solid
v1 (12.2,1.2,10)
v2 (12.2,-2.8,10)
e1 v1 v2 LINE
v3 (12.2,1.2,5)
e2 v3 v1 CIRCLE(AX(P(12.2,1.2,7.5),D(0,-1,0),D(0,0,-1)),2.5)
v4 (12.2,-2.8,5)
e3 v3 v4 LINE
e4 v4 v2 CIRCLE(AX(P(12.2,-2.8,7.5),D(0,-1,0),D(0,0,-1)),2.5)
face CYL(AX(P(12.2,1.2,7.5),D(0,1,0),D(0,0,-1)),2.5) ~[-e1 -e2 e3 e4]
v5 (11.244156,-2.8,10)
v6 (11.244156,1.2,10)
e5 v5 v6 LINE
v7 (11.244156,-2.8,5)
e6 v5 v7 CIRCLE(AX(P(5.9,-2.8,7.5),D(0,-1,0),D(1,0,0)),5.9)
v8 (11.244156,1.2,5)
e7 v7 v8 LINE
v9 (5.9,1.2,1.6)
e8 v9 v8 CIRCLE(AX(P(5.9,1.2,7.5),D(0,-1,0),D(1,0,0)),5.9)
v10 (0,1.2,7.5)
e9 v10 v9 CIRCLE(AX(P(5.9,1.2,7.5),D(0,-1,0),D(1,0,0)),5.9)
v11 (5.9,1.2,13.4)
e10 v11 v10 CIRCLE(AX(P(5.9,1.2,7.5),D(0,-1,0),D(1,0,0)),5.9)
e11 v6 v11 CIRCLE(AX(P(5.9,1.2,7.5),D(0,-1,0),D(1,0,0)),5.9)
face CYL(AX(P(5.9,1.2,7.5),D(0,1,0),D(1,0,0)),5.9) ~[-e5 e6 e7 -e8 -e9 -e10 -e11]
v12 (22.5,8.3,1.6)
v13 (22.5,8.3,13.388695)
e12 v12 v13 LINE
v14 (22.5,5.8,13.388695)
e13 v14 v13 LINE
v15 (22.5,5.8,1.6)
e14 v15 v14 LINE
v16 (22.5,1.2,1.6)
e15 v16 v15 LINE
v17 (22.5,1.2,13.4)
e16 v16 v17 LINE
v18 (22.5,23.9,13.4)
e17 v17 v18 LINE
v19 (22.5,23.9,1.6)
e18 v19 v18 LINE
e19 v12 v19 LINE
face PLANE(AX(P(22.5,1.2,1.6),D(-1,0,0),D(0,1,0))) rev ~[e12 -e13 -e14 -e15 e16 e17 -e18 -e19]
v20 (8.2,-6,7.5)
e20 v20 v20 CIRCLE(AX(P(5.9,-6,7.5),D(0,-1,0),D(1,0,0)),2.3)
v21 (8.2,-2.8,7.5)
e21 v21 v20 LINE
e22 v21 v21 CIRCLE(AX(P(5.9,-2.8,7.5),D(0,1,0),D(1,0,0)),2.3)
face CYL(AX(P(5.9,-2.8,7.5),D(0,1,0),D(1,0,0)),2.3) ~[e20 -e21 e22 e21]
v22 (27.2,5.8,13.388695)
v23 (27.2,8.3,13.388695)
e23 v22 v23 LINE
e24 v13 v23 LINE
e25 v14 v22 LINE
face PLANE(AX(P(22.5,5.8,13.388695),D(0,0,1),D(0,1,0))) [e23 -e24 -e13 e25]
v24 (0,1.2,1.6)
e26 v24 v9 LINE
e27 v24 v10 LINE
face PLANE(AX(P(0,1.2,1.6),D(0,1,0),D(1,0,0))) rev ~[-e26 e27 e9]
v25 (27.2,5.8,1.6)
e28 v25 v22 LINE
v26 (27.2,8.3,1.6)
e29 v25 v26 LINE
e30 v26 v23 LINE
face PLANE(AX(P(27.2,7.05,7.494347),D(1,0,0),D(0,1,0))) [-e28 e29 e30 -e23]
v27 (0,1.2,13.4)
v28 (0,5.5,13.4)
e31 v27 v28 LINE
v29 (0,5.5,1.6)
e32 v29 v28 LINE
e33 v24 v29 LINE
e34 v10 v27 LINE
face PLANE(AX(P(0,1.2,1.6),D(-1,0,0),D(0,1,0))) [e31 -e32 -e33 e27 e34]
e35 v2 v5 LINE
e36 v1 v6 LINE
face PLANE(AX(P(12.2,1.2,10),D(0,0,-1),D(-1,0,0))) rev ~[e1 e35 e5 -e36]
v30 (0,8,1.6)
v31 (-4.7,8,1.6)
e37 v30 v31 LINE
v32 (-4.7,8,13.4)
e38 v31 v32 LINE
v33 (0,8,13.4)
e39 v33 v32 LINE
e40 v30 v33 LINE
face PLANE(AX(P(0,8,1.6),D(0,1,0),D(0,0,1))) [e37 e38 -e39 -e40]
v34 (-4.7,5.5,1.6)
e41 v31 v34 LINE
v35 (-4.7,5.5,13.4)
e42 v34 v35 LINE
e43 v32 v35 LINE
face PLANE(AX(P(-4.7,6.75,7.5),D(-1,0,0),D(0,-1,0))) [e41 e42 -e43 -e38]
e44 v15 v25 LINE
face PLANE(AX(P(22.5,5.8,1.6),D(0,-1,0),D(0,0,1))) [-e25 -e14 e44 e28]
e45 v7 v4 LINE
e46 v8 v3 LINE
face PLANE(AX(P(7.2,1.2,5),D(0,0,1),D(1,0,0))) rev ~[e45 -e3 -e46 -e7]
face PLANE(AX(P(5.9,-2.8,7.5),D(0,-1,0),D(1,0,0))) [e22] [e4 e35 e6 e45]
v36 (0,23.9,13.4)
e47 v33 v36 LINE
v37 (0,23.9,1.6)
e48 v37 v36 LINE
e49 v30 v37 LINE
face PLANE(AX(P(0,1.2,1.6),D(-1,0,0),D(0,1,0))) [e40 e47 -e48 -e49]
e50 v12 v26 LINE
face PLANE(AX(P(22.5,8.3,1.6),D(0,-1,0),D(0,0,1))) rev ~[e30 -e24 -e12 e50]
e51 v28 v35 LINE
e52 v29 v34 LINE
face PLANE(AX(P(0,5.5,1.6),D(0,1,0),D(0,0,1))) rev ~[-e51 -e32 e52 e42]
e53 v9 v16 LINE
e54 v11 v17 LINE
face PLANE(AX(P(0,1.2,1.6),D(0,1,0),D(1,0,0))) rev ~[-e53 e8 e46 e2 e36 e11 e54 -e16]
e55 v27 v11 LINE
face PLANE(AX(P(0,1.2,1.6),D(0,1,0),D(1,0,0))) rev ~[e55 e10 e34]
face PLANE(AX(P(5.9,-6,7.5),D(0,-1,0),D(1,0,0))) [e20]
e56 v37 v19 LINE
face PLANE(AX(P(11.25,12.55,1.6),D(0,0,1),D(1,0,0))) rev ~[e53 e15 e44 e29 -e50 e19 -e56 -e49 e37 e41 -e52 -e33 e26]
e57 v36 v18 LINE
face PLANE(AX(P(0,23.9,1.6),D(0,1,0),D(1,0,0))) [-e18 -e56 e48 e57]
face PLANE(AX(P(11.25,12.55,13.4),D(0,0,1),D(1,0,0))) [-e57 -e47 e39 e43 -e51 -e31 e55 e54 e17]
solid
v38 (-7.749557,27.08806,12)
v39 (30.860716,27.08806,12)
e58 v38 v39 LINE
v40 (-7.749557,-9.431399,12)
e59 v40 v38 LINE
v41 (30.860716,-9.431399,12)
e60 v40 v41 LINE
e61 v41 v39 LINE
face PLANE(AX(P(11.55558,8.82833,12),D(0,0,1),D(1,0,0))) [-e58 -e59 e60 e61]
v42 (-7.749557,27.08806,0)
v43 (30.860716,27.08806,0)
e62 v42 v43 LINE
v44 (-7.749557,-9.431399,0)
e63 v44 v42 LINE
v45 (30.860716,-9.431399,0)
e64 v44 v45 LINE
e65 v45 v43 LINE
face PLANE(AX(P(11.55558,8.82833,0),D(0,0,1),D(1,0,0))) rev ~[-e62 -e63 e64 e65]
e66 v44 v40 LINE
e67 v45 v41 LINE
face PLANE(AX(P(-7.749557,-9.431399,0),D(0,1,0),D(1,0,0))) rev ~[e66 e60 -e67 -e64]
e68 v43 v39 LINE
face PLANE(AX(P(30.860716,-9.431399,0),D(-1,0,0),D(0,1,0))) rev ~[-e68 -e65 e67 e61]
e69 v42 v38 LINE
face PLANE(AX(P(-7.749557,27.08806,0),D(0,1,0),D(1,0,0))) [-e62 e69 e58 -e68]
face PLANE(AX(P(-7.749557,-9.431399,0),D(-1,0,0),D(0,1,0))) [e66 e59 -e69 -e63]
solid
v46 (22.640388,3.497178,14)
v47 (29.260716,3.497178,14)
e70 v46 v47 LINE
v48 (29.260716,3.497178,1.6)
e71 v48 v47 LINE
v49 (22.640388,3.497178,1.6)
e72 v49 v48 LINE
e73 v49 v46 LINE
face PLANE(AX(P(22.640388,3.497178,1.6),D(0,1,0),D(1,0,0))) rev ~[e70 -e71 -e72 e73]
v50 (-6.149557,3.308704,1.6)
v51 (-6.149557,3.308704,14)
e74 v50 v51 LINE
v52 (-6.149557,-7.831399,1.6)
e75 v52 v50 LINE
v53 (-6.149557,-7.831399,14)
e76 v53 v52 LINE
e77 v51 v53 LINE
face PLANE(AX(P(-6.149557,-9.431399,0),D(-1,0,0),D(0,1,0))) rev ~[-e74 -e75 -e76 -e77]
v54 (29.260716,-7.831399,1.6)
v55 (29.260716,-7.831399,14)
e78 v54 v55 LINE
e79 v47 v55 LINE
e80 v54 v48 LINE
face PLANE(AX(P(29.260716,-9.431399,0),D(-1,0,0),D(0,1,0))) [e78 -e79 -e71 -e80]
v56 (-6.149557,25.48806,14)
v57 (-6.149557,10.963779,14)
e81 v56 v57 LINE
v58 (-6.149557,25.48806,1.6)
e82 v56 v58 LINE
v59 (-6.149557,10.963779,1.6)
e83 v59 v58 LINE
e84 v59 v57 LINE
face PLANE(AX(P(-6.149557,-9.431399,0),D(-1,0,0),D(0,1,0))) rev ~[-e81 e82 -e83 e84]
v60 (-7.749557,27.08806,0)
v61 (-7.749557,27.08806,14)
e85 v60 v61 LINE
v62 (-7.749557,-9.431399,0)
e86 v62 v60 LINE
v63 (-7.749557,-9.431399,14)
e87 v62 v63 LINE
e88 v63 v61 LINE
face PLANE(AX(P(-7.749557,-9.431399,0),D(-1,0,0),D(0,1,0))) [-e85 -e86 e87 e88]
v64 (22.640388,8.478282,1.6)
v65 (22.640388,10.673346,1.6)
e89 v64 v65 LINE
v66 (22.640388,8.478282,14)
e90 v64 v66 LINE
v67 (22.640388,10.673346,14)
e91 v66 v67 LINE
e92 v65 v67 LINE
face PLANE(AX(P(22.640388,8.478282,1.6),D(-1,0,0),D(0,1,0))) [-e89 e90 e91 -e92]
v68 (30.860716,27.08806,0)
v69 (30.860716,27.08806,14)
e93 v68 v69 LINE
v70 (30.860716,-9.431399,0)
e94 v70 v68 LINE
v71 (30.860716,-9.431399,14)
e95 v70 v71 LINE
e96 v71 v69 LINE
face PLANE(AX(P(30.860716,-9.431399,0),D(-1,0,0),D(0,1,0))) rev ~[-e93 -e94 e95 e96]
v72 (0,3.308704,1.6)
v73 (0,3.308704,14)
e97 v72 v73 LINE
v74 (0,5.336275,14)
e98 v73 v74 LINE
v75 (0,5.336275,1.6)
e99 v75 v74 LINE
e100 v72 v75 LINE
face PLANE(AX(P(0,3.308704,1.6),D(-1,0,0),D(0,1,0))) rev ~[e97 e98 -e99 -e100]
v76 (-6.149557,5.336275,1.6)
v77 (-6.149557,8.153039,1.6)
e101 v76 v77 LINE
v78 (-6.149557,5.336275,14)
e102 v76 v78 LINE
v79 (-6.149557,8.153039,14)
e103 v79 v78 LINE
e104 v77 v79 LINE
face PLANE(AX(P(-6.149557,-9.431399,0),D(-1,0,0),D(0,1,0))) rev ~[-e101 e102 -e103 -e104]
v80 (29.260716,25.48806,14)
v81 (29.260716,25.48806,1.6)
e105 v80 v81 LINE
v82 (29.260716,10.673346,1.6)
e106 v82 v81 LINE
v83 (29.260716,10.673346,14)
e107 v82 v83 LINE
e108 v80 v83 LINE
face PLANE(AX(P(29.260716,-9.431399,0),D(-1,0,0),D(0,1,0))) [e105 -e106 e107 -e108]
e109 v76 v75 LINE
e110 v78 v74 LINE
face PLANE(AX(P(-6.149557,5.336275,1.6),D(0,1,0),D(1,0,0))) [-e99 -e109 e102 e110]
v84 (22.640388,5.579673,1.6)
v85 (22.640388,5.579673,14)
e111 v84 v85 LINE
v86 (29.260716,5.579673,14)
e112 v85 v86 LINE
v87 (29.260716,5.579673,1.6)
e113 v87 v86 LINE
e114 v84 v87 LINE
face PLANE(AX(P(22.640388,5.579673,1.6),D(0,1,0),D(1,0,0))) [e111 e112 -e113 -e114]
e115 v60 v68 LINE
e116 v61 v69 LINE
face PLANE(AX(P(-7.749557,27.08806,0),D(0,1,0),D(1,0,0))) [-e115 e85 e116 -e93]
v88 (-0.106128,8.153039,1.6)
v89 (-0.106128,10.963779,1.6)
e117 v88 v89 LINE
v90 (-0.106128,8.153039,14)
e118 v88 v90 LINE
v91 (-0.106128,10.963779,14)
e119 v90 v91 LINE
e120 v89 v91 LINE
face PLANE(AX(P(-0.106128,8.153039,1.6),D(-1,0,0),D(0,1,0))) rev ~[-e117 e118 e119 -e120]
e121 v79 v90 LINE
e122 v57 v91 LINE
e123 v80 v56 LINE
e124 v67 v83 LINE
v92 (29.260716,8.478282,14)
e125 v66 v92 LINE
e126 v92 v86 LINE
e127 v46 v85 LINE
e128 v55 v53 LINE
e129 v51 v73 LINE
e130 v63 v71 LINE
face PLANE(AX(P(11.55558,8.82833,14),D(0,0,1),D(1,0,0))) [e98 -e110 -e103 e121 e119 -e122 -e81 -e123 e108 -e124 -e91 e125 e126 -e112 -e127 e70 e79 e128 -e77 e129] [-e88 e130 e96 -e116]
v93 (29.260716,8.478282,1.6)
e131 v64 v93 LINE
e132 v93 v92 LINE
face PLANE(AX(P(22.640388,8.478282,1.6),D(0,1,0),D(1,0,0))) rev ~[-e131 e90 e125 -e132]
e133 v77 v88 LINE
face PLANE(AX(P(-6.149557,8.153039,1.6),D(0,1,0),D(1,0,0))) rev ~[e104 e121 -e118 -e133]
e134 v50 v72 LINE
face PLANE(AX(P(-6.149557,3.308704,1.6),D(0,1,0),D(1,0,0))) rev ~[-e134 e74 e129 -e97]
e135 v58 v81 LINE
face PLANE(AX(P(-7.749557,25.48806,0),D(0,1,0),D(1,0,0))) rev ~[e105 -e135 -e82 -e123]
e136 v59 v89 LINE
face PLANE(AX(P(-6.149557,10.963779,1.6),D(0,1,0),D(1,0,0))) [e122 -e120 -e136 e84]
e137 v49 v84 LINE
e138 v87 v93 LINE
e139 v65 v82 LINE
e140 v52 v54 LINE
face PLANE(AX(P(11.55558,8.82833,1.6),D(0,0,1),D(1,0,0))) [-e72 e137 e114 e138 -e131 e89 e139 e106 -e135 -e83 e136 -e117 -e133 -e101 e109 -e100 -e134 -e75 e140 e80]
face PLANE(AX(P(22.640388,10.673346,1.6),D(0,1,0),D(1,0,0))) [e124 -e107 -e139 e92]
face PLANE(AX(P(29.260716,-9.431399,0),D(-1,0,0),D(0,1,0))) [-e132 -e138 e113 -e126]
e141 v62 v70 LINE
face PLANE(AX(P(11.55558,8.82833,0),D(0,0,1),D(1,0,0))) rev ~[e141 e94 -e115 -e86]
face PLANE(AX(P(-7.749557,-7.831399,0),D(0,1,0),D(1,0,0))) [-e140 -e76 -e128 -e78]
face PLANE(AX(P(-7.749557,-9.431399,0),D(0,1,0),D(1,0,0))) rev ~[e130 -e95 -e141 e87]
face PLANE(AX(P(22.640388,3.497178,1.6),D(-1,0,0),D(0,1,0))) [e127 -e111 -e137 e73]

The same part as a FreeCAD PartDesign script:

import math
import FreeCAD as App
import Part
import Sketcher


def faces_at(feature, points):
    """Names of the faces that lie closest to the given points."""
    faces = feature.Shape.Faces
    near = lambda p: min(range(len(faces)), key=lambda i: faces[i].distToShape(Part.Vertex(*p))[0])
    return sorted({f"Face{near(p) + 1}" for p in points})

doc = App.newDocument("Part")
body = doc.addObject("PartDesign::Body", "Body")

sketch1 = body.newObject("Sketcher::SketchObject", "Sketch")
sketch1.AttachmentSupport = (doc.getObject("XY_Plane"), [""])
sketch1.MapMode = "FlatFace"
sketch1.addGeometry([
    Part.LineSegment(App.Vector(0, 22.7, 0), App.Vector(0, 0, 0)),
    Part.LineSegment(App.Vector(0, 0, 0), App.Vector(22.5, 0, 0)),
    Part.LineSegment(App.Vector(22.5, 0, 0), App.Vector(22.5, 22.7, 0)),
    Part.LineSegment(App.Vector(22.5, 22.7, 0), App.Vector(0, 22.7, 0)),
], False)
sketch1.addConstraint([
    Sketcher.Constraint("Coincident", 0, 2, 1, 1),
    Sketcher.Constraint("Coincident", 1, 2, 2, 1),
    Sketcher.Constraint("Coincident", 2, 2, 3, 1),
    Sketcher.Constraint("Coincident", 3, 2, 0, 1),
    Sketcher.Constraint("Vertical", 0),
    Sketcher.Constraint("Horizontal", 1),
    Sketcher.Constraint("Vertical", 2),
    Sketcher.Constraint("Horizontal", 3),
    Sketcher.Constraint("Coincident", 0, 2, -1, 1),
    Sketcher.Constraint("DistanceX", 1, 1, 1, 2, 22.5),
    Sketcher.Constraint("DistanceY", 0, 2, 0, 1, 22.7),
])
pad1 = body.newObject("PartDesign::Pad", "Pad")
pad1.Profile = sketch1
pad1.Length = 11.8

sketch2 = body.newObject("Sketcher::SketchObject", "Sketch001")
sketch2.AttachmentSupport = (doc.getObject("YZ_Plane"), [""])
sketch2.MapMode = "FlatFace"
sketch2.AttachmentOffset = App.Placement(App.Vector(0, 0, 22.5), App.Rotation())
sketch2.addGeometry([
    Part.LineSegment(App.Vector(4.6, 11.788695, 0), App.Vector(4.6, 0, 0)),
    Part.LineSegment(App.Vector(4.6, 0, 0), App.Vector(7.1, 0, 0)),
    Part.LineSegment(App.Vector(7.1, 0, 0), App.Vector(7.1, 11.788695, 0)),
    Part.LineSegment(App.Vector(7.1, 11.788695, 0), App.Vector(4.6, 11.788695, 0)),
], False)
sketch2.addConstraint([
    Sketcher.Constraint("Coincident", 0, 2, 1, 1),
    Sketcher.Constraint("Coincident", 1, 2, 2, 1),
    Sketcher.Constraint("Coincident", 2, 2, 3, 1),
    Sketcher.Constraint("Coincident", 3, 2, 0, 1),
    Sketcher.Constraint("Vertical", 0),
    Sketcher.Constraint("Horizontal", 1),
    Sketcher.Constraint("Vertical", 2),
    Sketcher.Constraint("Horizontal", 3),
    Sketcher.Constraint("PointOnObject", 0, 2, -1),
    Sketcher.Constraint("DistanceX", 1, 1, 1, 2, 2.5),
    Sketcher.Constraint("DistanceX", -1, 1, 0, 2, 4.6),
    Sketcher.Constraint("DistanceY", 0, 2, 0, 1, 11.788695),
])
pad2 = body.newObject("PartDesign::Pad", "Pad001")
pad2.Profile = sketch2
pad2.Length = 4.7

sketch3 = body.newObject("Sketcher::SketchObject", "Sketch002")
sketch3.AttachmentSupport = (doc.getObject("YZ_Plane"), [""])
sketch3.MapMode = "FlatFace"
sketch3.addGeometry([
    Part.LineSegment(App.Vector(6.8, 11.8, 0), App.Vector(6.8, 0, 0)),
    Part.LineSegment(App.Vector(6.8, 0, 0), App.Vector(4.3, 0, 0)),
    Part.LineSegment(App.Vector(4.3, 0, 0), App.Vector(4.3, 11.8, 0)),
    Part.LineSegment(App.Vector(4.3, 11.8, 0), App.Vector(6.8, 11.8, 0)),
], False)
sketch3.addConstraint([
    Sketcher.Constraint("Coincident", 0, 2, 1, 1),
    Sketcher.Constraint("Coincident", 1, 2, 2, 1),
    Sketcher.Constraint("Coincident", 2, 2, 3, 1),
    Sketcher.Constraint("Coincident", 3, 2, 0, 1),
    Sketcher.Constraint("Vertical", 0),
    Sketcher.Constraint("Horizontal", 1),
    Sketcher.Constraint("Vertical", 2),
    Sketcher.Constraint("Horizontal", 3),
    Sketcher.Constraint("PointOnObject", 0, 2, -1),
    Sketcher.Constraint("DistanceX", 1, 2, 1, 1, 2.5),
    Sketcher.Constraint("DistanceY", 0, 2, 0, 1, 11.8),
    Sketcher.Constraint("DistanceX", -1, 1, 0, 2, 6.8),
])
pad3 = body.newObject("PartDesign::Pad", "Pad002")
pad3.Profile = sketch3
pad3.Length = 4.7
pad3.Reversed = True

sketch4 = body.newObject("Sketcher::SketchObject", "Sketch003")
sketch4.AttachmentSupport = (doc.getObject("XZ_Plane"), [""])
sketch4.MapMode = "FlatFace"
sketch4.addGeometry(Part.Circle(App.Vector(5.9, 5.9, 0), App.Vector(0, 0, 1), 5.9), False)
sketch4.addConstraint([
    Sketcher.Constraint("Diameter", 0, 11.8),
    Sketcher.Constraint("DistanceX", -1, 1, 0, 3, 5.9),
    Sketcher.Constraint("DistanceY", -1, 1, 0, 3, 5.9),
])
pad4 = body.newObject("PartDesign::Pad", "Pad003")
pad4.Profile = sketch4
pad4.Length = 4

sketch5 = body.newObject("Sketcher::SketchObject", "Sketch004")
sketch5.AttachmentSupport = (doc.getObject("XZ_Plane"), [""])
sketch5.MapMode = "FlatFace"
sketch5.AttachmentOffset = App.Placement(App.Vector(0, 0, 4), App.Rotation())
sketch5.addGeometry(Part.Circle(App.Vector(5.9, 5.9, 0), App.Vector(0, 0, 1), 2.3), False)
sketch5.addConstraint([
    Sketcher.Constraint("Diameter", 0, 4.6),
    Sketcher.Constraint("DistanceX", -1, 1, 0, 3, 5.9),
    Sketcher.Constraint("DistanceY", -1, 1, 0, 3, 5.9),
])
pad5 = body.newObject("PartDesign::Pad", "Pad004")
pad5.Profile = sketch5
pad5.Length = 3.2

sketch6 = body.newObject("Sketcher::SketchObject", "Sketch005")
sketch6.AttachmentSupport = (doc.getObject("XZ_Plane"), [""])
sketch6.MapMode = "FlatFace"
sketch6.addGeometry([
    Part.ArcOfCircle(Part.Circle(App.Vector(7.2, 5.9, 0), App.Vector(0, 0, 1), 2.5), math.radians(90), math.radians(270)),
    Part.LineSegment(App.Vector(7.2, 3.4, 0), App.Vector(12.2, 3.4, 0)),
    Part.ArcOfCircle(Part.Circle(App.Vector(12.2, 5.9, 0), App.Vector(0, 0, 1), 2.5), math.radians(-90), math.radians(90)),
    Part.LineSegment(App.Vector(12.2, 8.4, 0), App.Vector(7.2, 8.4, 0)),
], False)
sketch6.addConstraint([
    Sketcher.Constraint("Tangent", 0, 2, 1, 1),
    Sketcher.Constraint("Tangent", 1, 2, 2, 1),
    Sketcher.Constraint("Tangent", 2, 2, 3, 1),
    Sketcher.Constraint("Tangent", 3, 2, 0, 1),
    Sketcher.Constraint("Horizontal", 1),
    Sketcher.Constraint("Horizontal", 3),
    Sketcher.Constraint("Radius", 0, 2.5),
    Sketcher.Constraint("DistanceX", 1, 1, 1, 2, 5.0),
    Sketcher.Constraint("DistanceX", -1, 1, 0, 3, 7.2),
    Sketcher.Constraint("DistanceY", -1, 1, 0, 3, 5.9),
])
pad6 = body.newObject("PartDesign::Pad", "Pad005")
pad6.Profile = sketch6
pad6.Length = 4
body2 = doc.addObject("PartDesign::Body", "Body001")
doc.recompute()

body.Placement = App.Placement(App.Vector(0, 1.2, 1.6), App.Rotation(App.Vector(0, 0, 1), 0))
boolean = body2.newObject("PartDesign::Boolean", "Boolean")
boolean.Type = "Fuse"
boolean.addObjects([body])
body3 = doc.addObject("PartDesign::Body", "Body002")

sketch7 = body3.newObject("Sketcher::SketchObject", "Sketch006")
sketch7.AttachmentSupport = (doc.getObject("XY_Plane002"), [""])
sketch7.MapMode = "FlatFace"
sketch7.addGeometry([
    Part.LineSegment(App.Vector(-7.749557, 27.08806, 0), App.Vector(-7.749557, -9.431399, 0)),
    Part.LineSegment(App.Vector(-7.749557, -9.431399, 0), App.Vector(30.860716, -9.431399, 0)),
    Part.LineSegment(App.Vector(30.860716, -9.431399, 0), App.Vector(30.860716, 27.08806, 0)),
    Part.LineSegment(App.Vector(30.860716, 27.08806, 0), App.Vector(-7.749557, 27.08806, 0)),
], False)
sketch7.addConstraint([
    Sketcher.Constraint("Coincident", 0, 2, 1, 1),
    Sketcher.Constraint("Coincident", 1, 2, 2, 1),
    Sketcher.Constraint("Coincident", 2, 2, 3, 1),
    Sketcher.Constraint("Coincident", 3, 2, 0, 1),
    Sketcher.Constraint("Vertical", 0),
    Sketcher.Constraint("Horizontal", 1),
    Sketcher.Constraint("Vertical", 2),
    Sketcher.Constraint("Horizontal", 3),
    Sketcher.Constraint("DistanceY", 0, 2, 0, 1, 36.519459),
    Sketcher.Constraint("DistanceY", 0, 2, -1, 1, 9.431399),
    Sketcher.Constraint("DistanceX", 1, 1, 1, 2, 38.610273),
    Sketcher.Constraint("DistanceX", 0, 2, -1, 1, 7.749557),
])
pad7 = body3.newObject("PartDesign::Pad", "Pad006")
pad7.Profile = sketch7
pad7.Length = 14
doc.recompute()

thickness = body3.newObject("PartDesign::Thickness", "Thickness")
thickness.Base = (pad7, faces_at(pad7, [(11.556, 8.828, 14)]))
thickness.Value = 1.6
thickness.Reversed = True
thickness.Join = "Intersection"

sketch8 = body3.newObject("Sketcher::SketchObject", "Sketch007")
sketch8.AttachmentSupport = (doc.getObject("XY_Plane002"), [""])
sketch8.MapMode = "FlatFace"
sketch8.AttachmentOffset = App.Placement(App.Vector(0, 0, 1.6), App.Rotation())
sketch8.addGeometry([
    Part.LineSegment(App.Vector(-6.149557, 10.963779, 0), App.Vector(-6.149557, 8.153039, 0)),
    Part.LineSegment(App.Vector(-6.149557, 8.153039, 0), App.Vector(-0.106128, 8.153039, 0)),
    Part.LineSegment(App.Vector(-0.106128, 8.153039, 0), App.Vector(-0.106128, 10.963779, 0)),
    Part.LineSegment(App.Vector(-0.106128, 10.963779, 0), App.Vector(-6.149557, 10.963779, 0)),
    Part.LineSegment(App.Vector(-6.149557, 5.336275, 0), App.Vector(-6.149557, 3.308704, 0)),
    Part.LineSegment(App.Vector(-6.149557, 3.308704, 0), App.Vector(0, 3.308704, 0)),
    Part.LineSegment(App.Vector(0, 3.308704, 0), App.Vector(0, 5.336275, 0)),
    Part.LineSegment(App.Vector(0, 5.336275, 0), App.Vector(-6.149557, 5.336275, 0)),
    Part.LineSegment(App.Vector(22.640388, 10.673346, 0), App.Vector(22.640388, 8.478282, 0)),
    Part.LineSegment(App.Vector(22.640388, 8.478282, 0), App.Vector(29.260716, 8.478282, 0)),
    Part.LineSegment(App.Vector(29.260716, 8.478282, 0), App.Vector(29.260716, 10.673346, 0)),
    Part.LineSegment(App.Vector(29.260716, 10.673346, 0), App.Vector(22.640388, 10.673346, 0)),
    Part.LineSegment(App.Vector(22.640388, 5.579673, 0), App.Vector(22.640388, 3.497178, 0)),
    Part.LineSegment(App.Vector(22.640388, 3.497178, 0), App.Vector(29.260716, 3.497178, 0)),
    Part.LineSegment(App.Vector(29.260716, 3.497178, 0), App.Vector(29.260716, 5.579673, 0)),
    Part.LineSegment(App.Vector(29.260716, 5.579673, 0), App.Vector(22.640388, 5.579673, 0)),
], False)
sketch8.addConstraint([
    Sketcher.Constraint("Coincident", 0, 2, 1, 1),
    Sketcher.Constraint("Coincident", 1, 2, 2, 1),
    Sketcher.Constraint("Coincident", 2, 2, 3, 1),
    Sketcher.Constraint("Coincident", 3, 2, 0, 1),
    Sketcher.Constraint("Coincident", 4, 2, 5, 1),
    Sketcher.Constraint("Coincident", 5, 2, 6, 1),
    Sketcher.Constraint("Coincident", 6, 2, 7, 1),
    Sketcher.Constraint("Coincident", 7, 2, 4, 1),
    Sketcher.Constraint("Coincident", 8, 2, 9, 1),
    Sketcher.Constraint("Coincident", 9, 2, 10, 1),
    Sketcher.Constraint("Coincident", 10, 2, 11, 1),
    Sketcher.Constraint("Coincident", 11, 2, 8, 1),
    Sketcher.Constraint("Coincident", 12, 2, 13, 1),
    Sketcher.Constraint("Coincident", 13, 2, 14, 1),
    Sketcher.Constraint("Coincident", 14, 2, 15, 1),
    Sketcher.Constraint("Coincident", 15, 2, 12, 1),
    Sketcher.Constraint("Vertical", 0),
    Sketcher.Constraint("Horizontal", 1),
    Sketcher.Constraint("Vertical", 2),
    Sketcher.Constraint("Horizontal", 3),
    Sketcher.Constraint("Vertical", 4),
    Sketcher.Constraint("Horizontal", 5),
    Sketcher.Constraint("Vertical", 6),
    Sketcher.Constraint("Horizontal", 7),
    Sketcher.Constraint("Vertical", 8),
    Sketcher.Constraint("Horizontal", 9),
    Sketcher.Constraint("Vertical", 10),
    Sketcher.Constraint("Horizontal", 11),
    Sketcher.Constraint("Vertical", 12),
    Sketcher.Constraint("Horizontal", 13),
    Sketcher.Constraint("Vertical", 14),
    Sketcher.Constraint("Horizontal", 15),
    Sketcher.Constraint("PointOnObject", 5, 2, -2),
    Sketcher.Constraint("Vertical", 3, 2, 4, 2),
    Sketcher.Constraint("Vertical", 11, 2, 12, 2),
    Sketcher.Constraint("Vertical", 10, 2, 13, 2),
    Sketcher.Constraint("DistanceX", 1, 1, 1, 2, 6.043429),
    Sketcher.Constraint("DistanceY", 0, 2, 0, 1, 2.81074),
    Sketcher.Constraint("DistanceY", 4, 2, 4, 1, 2.027571),
    Sketcher.Constraint("DistanceX", 5, 1, 5, 2, 6.149557),
    Sketcher.Constraint("DistanceX", 9, 1, 9, 2, 6.620328),
    Sketcher.Constraint("DistanceY", 8, 2, 8, 1, 2.195064),
    Sketcher.Constraint("DistanceY", 12, 2, 12, 1, 2.082495),
    Sketcher.Constraint("DistanceY", -1, 1, 0, 2, 8.153039),
    Sketcher.Constraint("DistanceX", -1, 1, 8, 2, 22.640388),
    Sketcher.Constraint("DistanceY", 6, 2, 10, 2, 5.337071),
    Sketcher.Constraint("DistanceY", 12, 2, 11, 2, 7.176168),
    Sketcher.Constraint("DistanceY", -1, 1, 4, 2, 3.308704),
])
pad8 = body3.newObject("PartDesign::Pad", "Pad007")
pad8.Profile = sketch8
pad8.Length = 12.4
body4 = doc.addObject("PartDesign::Body", "Body003")

sketch9 = body4.newObject("Sketcher::SketchObject", "Sketch008")
sketch9.AttachmentSupport = (doc.getObject("XY_Plane003"), [""])
sketch9.MapMode = "FlatFace"
sketch9.addGeometry([
    Part.LineSegment(App.Vector(-7.749557, 27.08806, 0), App.Vector(-7.749557, -9.431399, 0)),
    Part.LineSegment(App.Vector(-7.749557, -9.431399, 0), App.Vector(30.860716, -9.431399, 0)),
    Part.LineSegment(App.Vector(30.860716, -9.431399, 0), App.Vector(30.860716, 27.08806, 0)),
    Part.LineSegment(App.Vector(30.860716, 27.08806, 0), App.Vector(-7.749557, 27.08806, 0)),
], False)
sketch9.addConstraint([
    Sketcher.Constraint("Coincident", 0, 2, 1, 1),
    Sketcher.Constraint("Coincident", 1, 2, 2, 1),
    Sketcher.Constraint("Coincident", 2, 2, 3, 1),
    Sketcher.Constraint("Coincident", 3, 2, 0, 1),
    Sketcher.Constraint("Vertical", 0),
    Sketcher.Constraint("Horizontal", 1),
    Sketcher.Constraint("Vertical", 2),
    Sketcher.Constraint("Horizontal", 3),
    Sketcher.Constraint("DistanceY", 0, 2, 0, 1, 36.519459),
    Sketcher.Constraint("DistanceY", 0, 2, -1, 1, 9.431399),
    Sketcher.Constraint("DistanceX", 1, 1, 1, 2, 38.610273),
    Sketcher.Constraint("DistanceX", 0, 2, -1, 1, 7.749557),
])
pad9 = body4.newObject("PartDesign::Pad", "Pad008")
pad9.Profile = sketch9
pad9.Length = 12

doc.recompute()
